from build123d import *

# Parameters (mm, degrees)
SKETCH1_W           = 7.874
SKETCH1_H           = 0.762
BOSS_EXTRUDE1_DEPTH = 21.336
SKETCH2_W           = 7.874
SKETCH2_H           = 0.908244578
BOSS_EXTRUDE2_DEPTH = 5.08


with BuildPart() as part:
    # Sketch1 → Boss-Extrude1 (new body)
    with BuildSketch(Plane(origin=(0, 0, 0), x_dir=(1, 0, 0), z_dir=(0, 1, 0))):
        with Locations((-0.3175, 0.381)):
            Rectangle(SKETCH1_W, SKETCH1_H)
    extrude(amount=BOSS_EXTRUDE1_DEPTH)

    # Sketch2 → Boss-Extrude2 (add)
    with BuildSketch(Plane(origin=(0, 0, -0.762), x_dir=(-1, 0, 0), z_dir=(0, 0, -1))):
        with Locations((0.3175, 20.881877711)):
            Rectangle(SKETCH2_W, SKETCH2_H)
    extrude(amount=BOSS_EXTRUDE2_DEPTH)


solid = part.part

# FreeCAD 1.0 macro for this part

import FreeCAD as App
import Part
import Sketcher

V = App.Vector
Q = App.Units.Quantity

doc = App.newDocument("Part")
body = doc.addObject("PartDesign::Body", "Body")

# Sketch on XZ plane
sketch1 = body.newObject("Sketcher::SketchObject", "Sketch")
sketch1.AttachmentSupport = (doc.getObject("XZ_Plane"), [""])
sketch1.MapMode = "FlatFace"
sketch1.addGeometry(Part.LineSegment(V(-4.2545, -0.762, 0), V(-4.2545, 0, 0)), False)
sketch1.addGeometry(Part.LineSegment(V(-4.2545, 0, 0), V(3.6195, 0, 0)), False)
sketch1.addGeometry(Part.LineSegment(V(3.6195, 0, 0), V(3.6195, -0.762, 0)), False)
sketch1.addGeometry(Part.LineSegment(V(3.6195, -0.762, 0), V(-4.2545, -0.762, 0)), False)
sketch1.addConstraint(Sketcher.Constraint("Coincident", 0, 2, 1, 1))
sketch1.addConstraint(Sketcher.Constraint("Coincident", 1, 2, 2, 1))
sketch1.addConstraint(Sketcher.Constraint("Coincident", 2, 2, 3, 1))
sketch1.addConstraint(Sketcher.Constraint("Coincident", 3, 2, 0, 1))
sketch1.addConstraint(Sketcher.Constraint("Vertical", 0))
sketch1.addConstraint(Sketcher.Constraint("Horizontal", 1))
sketch1.addConstraint(Sketcher.Constraint("Vertical", 2))
sketch1.addConstraint(Sketcher.Constraint("Horizontal", 3))
sketch1.addConstraint(Sketcher.Constraint("PointOnObject", 0, 2, -1))
sketch1.addConstraint(Sketcher.Constraint("DistanceX", 1, 1, 1, 2, Q("0.31 in")))
sketch1.addConstraint(Sketcher.Constraint("DistanceY", 0, 1, 0, 2, Q("0.03 in")))
sketch1.addConstraint(Sketcher.Constraint("DistanceX", 0, 2, -1, 1, Q("0.1675 in")))
pad1 = body.newObject("PartDesign::Pad", "Pad")
pad1.Profile = sketch1
pad1.Length = Q("0.84 in")
pad1.Reversed = True

# Sketch on XY plane
sketch2 = body.newObject("Sketcher::SketchObject", "Sketch001")
sketch2.AttachmentSupport = (doc.getObject("XY_Plane"), [""])
sketch2.MapMode = "FlatFace"
sketch2.AttachmentOffset = App.Placement(V(0, 0, -0.03 * 25.4), App.Rotation())
sketch2.addGeometry(Part.LineSegment(V(3.6195, 21.336, 0), V(3.6195, 20.427755, 0)), False)
sketch2.addGeometry(Part.LineSegment(V(3.6195, 20.427755, 0), V(-4.2545, 20.427755, 0)), False)
sketch2.addGeometry(Part.LineSegment(V(-4.2545, 20.427755, 0), V(-4.2545, 21.336, 0)), False)
sketch2.addGeometry(Part.LineSegment(V(-4.2545, 21.336, 0), V(3.6195, 21.336, 0)), False)
sketch2.addConstraint(Sketcher.Constraint("Coincident", 0, 2, 1, 1))
sketch2.addConstraint(Sketcher.Constraint("Coincident", 1, 2, 2, 1))
sketch2.addConstraint(Sketcher.Constraint("Coincident", 2, 2, 3, 1))
sketch2.addConstraint(Sketcher.Constraint("Coincident", 3, 2, 0, 1))
sketch2.addConstraint(Sketcher.Constraint("Vertical", 0))
sketch2.addConstraint(Sketcher.Constraint("Horizontal", 1))
sketch2.addConstraint(Sketcher.Constraint("Vertical", 2))
sketch2.addConstraint(Sketcher.Constraint("Horizontal", 3))
sketch2.addConstraint(Sketcher.Constraint("DistanceX", 1, 2, 1, 1, Q("0.31 in")))
sketch2.addConstraint(Sketcher.Constraint("DistanceY", -1, 1, 2, 2, Q("0.84 in")))
sketch2.addConstraint(Sketcher.Constraint("DistanceX", -1, 1, 0, 2, Q("0.1425 in")))
sketch2.addConstraint(Sketcher.Constraint("DistanceY", 0, 2, 0, 1, 0.908245))
pad2 = body.newObject("PartDesign::Pad", "Pad001")
pad2.Profile = sketch2
pad2.Length = Q("0.2 in")
pad2.Reversed = True

doc.recompute()
